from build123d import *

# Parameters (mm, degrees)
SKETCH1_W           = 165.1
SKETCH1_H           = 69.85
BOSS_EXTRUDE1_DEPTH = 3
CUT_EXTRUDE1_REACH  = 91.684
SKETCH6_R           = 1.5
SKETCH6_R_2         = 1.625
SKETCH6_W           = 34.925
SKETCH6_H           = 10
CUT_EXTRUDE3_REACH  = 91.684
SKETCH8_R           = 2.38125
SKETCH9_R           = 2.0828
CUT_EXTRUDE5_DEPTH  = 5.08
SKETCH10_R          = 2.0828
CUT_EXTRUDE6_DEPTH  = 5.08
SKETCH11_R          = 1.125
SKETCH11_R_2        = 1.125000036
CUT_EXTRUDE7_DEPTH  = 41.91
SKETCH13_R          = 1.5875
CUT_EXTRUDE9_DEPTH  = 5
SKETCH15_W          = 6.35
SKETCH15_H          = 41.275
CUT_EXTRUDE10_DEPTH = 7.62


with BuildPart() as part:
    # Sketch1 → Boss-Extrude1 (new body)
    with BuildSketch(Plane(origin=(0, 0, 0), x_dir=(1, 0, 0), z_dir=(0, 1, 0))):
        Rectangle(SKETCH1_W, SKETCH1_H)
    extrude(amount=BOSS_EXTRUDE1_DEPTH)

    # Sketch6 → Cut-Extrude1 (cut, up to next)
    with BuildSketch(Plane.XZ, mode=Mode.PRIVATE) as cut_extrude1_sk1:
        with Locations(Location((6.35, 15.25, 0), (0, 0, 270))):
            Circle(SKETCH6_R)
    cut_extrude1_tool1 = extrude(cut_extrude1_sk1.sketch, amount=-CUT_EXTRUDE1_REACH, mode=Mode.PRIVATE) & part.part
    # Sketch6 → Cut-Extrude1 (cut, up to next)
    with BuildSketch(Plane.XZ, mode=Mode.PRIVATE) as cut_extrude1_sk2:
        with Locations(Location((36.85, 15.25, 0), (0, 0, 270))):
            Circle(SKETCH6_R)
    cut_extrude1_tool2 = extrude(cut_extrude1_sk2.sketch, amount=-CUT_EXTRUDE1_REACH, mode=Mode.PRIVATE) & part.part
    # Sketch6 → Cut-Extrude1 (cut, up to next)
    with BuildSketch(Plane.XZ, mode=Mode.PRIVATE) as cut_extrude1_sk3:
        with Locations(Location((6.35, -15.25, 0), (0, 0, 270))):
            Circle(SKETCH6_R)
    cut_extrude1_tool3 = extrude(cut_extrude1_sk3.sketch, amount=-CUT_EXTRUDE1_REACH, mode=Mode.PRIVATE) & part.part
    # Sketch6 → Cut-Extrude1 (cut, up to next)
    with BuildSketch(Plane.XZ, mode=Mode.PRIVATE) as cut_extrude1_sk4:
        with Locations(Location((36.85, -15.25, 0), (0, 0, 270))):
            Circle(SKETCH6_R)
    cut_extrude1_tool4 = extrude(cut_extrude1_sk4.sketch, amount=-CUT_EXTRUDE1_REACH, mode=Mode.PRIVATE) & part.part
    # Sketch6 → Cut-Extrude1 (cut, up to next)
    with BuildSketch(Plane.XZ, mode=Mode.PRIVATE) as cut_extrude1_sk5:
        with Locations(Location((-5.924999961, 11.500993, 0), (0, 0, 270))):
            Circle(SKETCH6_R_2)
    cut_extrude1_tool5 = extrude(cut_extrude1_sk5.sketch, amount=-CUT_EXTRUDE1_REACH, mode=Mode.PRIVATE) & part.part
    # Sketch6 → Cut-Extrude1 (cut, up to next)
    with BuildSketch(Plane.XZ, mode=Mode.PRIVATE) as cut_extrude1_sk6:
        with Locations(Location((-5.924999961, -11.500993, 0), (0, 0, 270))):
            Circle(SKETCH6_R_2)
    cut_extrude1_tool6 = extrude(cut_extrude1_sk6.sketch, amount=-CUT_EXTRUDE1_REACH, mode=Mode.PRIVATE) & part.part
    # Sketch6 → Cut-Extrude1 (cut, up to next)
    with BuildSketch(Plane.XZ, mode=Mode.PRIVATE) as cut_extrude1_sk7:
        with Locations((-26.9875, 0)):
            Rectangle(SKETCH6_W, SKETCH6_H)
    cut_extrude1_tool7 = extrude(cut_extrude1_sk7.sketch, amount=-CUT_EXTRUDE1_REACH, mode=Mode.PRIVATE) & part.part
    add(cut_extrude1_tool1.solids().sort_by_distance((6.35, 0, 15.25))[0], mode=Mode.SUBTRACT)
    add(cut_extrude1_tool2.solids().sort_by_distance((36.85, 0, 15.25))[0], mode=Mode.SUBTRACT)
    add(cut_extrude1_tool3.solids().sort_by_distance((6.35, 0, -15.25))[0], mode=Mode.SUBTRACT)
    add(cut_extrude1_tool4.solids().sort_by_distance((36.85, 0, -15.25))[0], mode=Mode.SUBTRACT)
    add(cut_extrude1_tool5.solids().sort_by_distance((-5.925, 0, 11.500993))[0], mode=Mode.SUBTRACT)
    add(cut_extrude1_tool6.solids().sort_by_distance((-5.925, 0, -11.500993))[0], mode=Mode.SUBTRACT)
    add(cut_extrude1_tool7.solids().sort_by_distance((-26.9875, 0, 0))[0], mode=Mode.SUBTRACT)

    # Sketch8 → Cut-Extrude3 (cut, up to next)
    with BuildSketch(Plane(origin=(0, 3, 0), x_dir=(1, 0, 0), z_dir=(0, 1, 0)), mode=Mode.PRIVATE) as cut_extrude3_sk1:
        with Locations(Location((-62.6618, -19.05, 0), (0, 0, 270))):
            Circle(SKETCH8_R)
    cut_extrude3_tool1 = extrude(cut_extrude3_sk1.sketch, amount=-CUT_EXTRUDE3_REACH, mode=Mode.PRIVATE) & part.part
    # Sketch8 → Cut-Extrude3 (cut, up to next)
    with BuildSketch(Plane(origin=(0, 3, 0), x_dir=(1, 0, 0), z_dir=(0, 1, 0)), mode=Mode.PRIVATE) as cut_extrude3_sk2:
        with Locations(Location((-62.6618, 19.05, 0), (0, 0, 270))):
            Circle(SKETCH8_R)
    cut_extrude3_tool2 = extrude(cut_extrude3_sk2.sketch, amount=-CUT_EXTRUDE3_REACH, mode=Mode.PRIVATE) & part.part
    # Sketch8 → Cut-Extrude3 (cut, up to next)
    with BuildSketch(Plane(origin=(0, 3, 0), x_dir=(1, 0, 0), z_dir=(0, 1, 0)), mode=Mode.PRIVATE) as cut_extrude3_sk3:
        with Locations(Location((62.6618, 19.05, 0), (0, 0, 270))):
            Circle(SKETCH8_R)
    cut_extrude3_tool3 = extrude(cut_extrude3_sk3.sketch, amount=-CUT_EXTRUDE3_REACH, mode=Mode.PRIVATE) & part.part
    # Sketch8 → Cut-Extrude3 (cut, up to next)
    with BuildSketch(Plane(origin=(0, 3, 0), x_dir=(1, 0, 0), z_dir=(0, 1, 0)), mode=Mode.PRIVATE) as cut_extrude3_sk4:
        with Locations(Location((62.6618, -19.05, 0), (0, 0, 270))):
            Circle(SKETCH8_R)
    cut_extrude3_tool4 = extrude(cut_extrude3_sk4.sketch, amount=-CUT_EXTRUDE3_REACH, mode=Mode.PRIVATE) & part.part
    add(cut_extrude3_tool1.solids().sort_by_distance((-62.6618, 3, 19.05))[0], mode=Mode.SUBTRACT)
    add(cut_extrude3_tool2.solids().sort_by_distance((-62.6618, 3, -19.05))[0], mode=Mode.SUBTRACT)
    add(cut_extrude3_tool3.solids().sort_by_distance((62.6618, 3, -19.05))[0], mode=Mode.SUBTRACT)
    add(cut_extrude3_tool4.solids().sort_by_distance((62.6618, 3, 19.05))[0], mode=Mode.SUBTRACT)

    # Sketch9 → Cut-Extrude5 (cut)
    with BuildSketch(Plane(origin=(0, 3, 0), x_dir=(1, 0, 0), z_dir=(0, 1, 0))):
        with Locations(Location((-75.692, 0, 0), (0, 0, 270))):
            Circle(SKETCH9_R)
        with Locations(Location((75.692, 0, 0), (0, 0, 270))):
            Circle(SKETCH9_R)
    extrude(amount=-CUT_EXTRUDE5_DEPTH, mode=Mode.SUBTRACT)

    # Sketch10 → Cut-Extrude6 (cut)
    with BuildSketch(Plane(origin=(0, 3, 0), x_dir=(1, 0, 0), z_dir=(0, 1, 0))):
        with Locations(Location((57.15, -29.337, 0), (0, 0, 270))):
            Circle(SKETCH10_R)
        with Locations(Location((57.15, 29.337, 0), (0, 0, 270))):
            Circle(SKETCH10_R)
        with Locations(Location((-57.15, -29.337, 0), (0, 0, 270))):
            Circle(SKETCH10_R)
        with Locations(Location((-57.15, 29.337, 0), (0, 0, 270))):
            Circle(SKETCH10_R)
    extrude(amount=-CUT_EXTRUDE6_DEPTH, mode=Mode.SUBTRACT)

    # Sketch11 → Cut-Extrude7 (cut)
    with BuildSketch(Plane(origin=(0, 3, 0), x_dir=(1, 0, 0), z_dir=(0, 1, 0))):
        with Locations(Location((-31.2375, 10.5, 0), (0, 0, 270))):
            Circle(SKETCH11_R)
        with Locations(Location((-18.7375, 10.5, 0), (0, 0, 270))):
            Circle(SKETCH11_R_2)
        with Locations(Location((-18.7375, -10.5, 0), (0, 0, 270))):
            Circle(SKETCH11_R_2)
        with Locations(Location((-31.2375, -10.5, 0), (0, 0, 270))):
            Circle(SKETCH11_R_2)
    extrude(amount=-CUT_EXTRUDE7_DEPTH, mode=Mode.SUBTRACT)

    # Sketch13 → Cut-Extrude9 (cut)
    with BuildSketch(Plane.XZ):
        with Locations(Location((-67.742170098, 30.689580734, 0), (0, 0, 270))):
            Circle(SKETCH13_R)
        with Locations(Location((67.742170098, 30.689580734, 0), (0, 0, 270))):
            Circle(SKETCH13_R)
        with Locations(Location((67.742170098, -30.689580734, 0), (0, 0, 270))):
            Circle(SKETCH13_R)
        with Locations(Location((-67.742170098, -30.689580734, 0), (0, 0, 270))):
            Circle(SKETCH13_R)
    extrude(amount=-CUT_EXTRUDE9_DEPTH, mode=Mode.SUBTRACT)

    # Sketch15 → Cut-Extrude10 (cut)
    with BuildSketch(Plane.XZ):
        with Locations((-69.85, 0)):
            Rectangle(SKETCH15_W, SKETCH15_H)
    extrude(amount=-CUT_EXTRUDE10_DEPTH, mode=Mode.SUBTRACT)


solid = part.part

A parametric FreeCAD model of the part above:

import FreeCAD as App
import Part
import Sketcher
Q = App.Units.Quantity

doc = App.newDocument("Part")
body = doc.addObject("PartDesign::Body", "Body")

# Sketch on XZ plane
sketch1 = body.newObject("Sketcher::SketchObject", "Sketch")
sketch1.AttachmentSupport = (doc.getObject("XZ_Plane"), [""])
sketch1.MapMode = "FlatFace"
sketch1.addGeometry(Part.LineSegment(App.Vector(-83, -35, 0), App.Vector(-83, 35, 0)), False)
sketch1.addGeometry(Part.LineSegment(App.Vector(-83, 35, 0), App.Vector(83, 35, 0)), False)
sketch1.addGeometry(Part.LineSegment(App.Vector(83, 35, 0), App.Vector(83, -35, 0)), False)
sketch1.addGeometry(Part.LineSegment(App.Vector(83, -35, 0), App.Vector(-83, -35, 0)), False)
sketch1.addConstraint(Sketcher.Constraint("Coincident", 0, 2, 1, 1))
sketch1.addConstraint(Sketcher.Constraint("Coincident", 1, 2, 2, 1))
sketch1.addConstraint(Sketcher.Constraint("Coincident", 2, 2, 3, 1))
sketch1.addConstraint(Sketcher.Constraint("Coincident", 3, 2, 0, 1))
sketch1.addConstraint(Sketcher.Constraint("Vertical", 0))
sketch1.addConstraint(Sketcher.Constraint("Horizontal", 1))
sketch1.addConstraint(Sketcher.Constraint("Vertical", 2))
sketch1.addConstraint(Sketcher.Constraint("Horizontal", 3))
sketch1.addConstraint(Sketcher.Constraint("Symmetric", 0, 2, 2, 2, -1, 1))
sketch1.addConstraint(Sketcher.Constraint("DistanceX", 1, 1, 1, 2, Q("6.5 in")))
sketch1.addConstraint(Sketcher.Constraint("DistanceY", 0, 1, 0, 2, Q("2.75 in")))
pad1 = body.newObject("PartDesign::Pad", "Pad")
pad1.Profile = sketch1
pad1.Length = 3
pad1.Reversed = True

# Sketch on XZ plane
sketch2 = body.newObject("Sketcher::SketchObject", "Sketch001")
sketch2.AttachmentSupport = (doc.getObject("XZ_Plane"), [""])
sketch2.MapMode = "FlatFace"
sketch2.addGeometry(Part.Circle(App.Vector(6.3, 15.2, 0), App.Vector(0, 0, 1), 1.5), False)
sketch2.addConstraint(Sketcher.Constraint("Diameter", 0, 3.0))
sketch2.addConstraint(Sketcher.Constraint("DistanceX", -1, 1, 0, 3, Q("0.25 in")))
sketch2.addConstraint(Sketcher.Constraint("DistanceY", -1, 1, 0, 3, 15.25))
pocket1 = body.newObject("PartDesign::Pocket", "Pocket")
pocket1.Profile = sketch2
pocket1.Type = "UpToFirst"

# Sketch on XZ plane
sketch3 = body.newObject("Sketcher::SketchObject", "Sketch002")
sketch3.AttachmentSupport = (doc.getObject("XZ_Plane"), [""])
sketch3.MapMode = "FlatFace"
sketch3.addGeometry(Part.Circle(App.Vector(36.9, 15.2, 0), App.Vector(0, 0, 1), 1.5), False)
sketch3.addConstraint(Sketcher.Constraint("Diameter", 0, 3.0))
sketch3.addConstraint(Sketcher.Constraint("DistanceX", -1, 1, 0, 3, 36.85))
sketch3.addConstraint(Sketcher.Constraint("DistanceY", -1, 1, 0, 3, 15.25))
pocket2 = body.newObject("PartDesign::Pocket", "Pocket001")
pocket2.Profile = sketch3
pocket2.Type = "UpToFirst"

# Sketch on XZ plane
sketch4 = body.newObject("Sketcher::SketchObject", "Sketch003")
sketch4.AttachmentSupport = (doc.getObject("XZ_Plane"), [""])
sketch4.MapMode = "FlatFace"
sketch4.addGeometry(Part.Circle(App.Vector(6.3, -15.2, 0), App.Vector(0, 0, 1), 1.5), False)
sketch4.addConstraint(Sketcher.Constraint("Diameter", 0, 3.0))
sketch4.addConstraint(Sketcher.Constraint("DistanceX", -1, 1, 0, 3, Q("0.25 in")))
sketch4.addConstraint(Sketcher.Constraint("DistanceY", 0, 3, -1, 1, 15.25))
pocket3 = body.newObject("PartDesign::Pocket", "Pocket002")
pocket3.Profile = sketch4
pocket3.Type = "UpToFirst"

# Sketch on XZ plane
sketch5 = body.newObject("Sketcher::SketchObject", "Sketch004")
sketch5.AttachmentSupport = (doc.getObject("XZ_Plane"), [""])
sketch5.MapMode = "FlatFace"
sketch5.addGeometry(Part.Circle(App.Vector(36.9, -15.2, 0), App.Vector(0, 0, 1), 1.5), False)
sketch5.addConstraint(Sketcher.Constraint("Diameter", 0, 3.0))
sketch5.addConstraint(Sketcher.Constraint("DistanceX", -1, 1, 0, 3, 36.85))
sketch5.addConstraint(Sketcher.Constraint("DistanceY", 0, 3, -1, 1, 15.25))
pocket4 = body.newObject("PartDesign::Pocket", "Pocket003")
pocket4.Profile = sketch5
pocket4.Type = "UpToFirst"

# Sketch on XZ plane
sketch6 = body.newObject("Sketcher::SketchObject", "Sketch005")
sketch6.AttachmentSupport = (doc.getObject("XZ_Plane"), [""])
sketch6.MapMode = "FlatFace"
sketch6.addGeometry(Part.Circle(App.Vector(-5.9, 11.5, 0), App.Vector(0, 0, 1), 1.6), False)
sketch6.addConstraint(Sketcher.Constraint("Diameter", 0, 3.25))
sketch6.addConstraint(Sketcher.Constraint("DistanceX", 0, 3, -1, 1, 5.925))
sketch6.addConstraint(Sketcher.Constraint("DistanceY", -1, 1, 0, 3, 11.500993))
pocket5 = body.newObject("PartDesign::Pocket", "Pocket004")
pocket5.Profile = sketch6
pocket5.Type = "UpToFirst"

# Sketch on XZ plane
sketch7 = body.newObject("Sketcher::SketchObject", "Sketch006")
sketch7.AttachmentSupport = (doc.getObject("XZ_Plane"), [""])
sketch7.MapMode = "FlatFace"
sketch7.addGeometry(Part.Circle(App.Vector(-5.9, -11.5, 0), App.Vector(0, 0, 1), 1.6), False)
sketch7.addConstraint(Sketcher.Constraint("Diameter", 0, 3.25))
sketch7.addConstraint(Sketcher.Constraint("DistanceX", 0, 3, -1, 1, 5.925))
sketch7.addConstraint(Sketcher.Constraint("DistanceY", 0, 3, -1, 1, 11.500993))
pocket6 = body.newObject("PartDesign::Pocket", "Pocket005")
pocket6.Profile = sketch7
pocket6.Type = "UpToFirst"

# Sketch on XZ plane
sketch8 = body.newObject("Sketcher::SketchObject", "Sketch007")
sketch8.AttachmentSupport = (doc.getObject("XZ_Plane"), [""])
sketch8.MapMode = "FlatFace"
sketch8.addGeometry(Part.LineSegment(App.Vector(-44, 5, 0), App.Vector(-44, -5, 0)), False)
sketch8.addGeometry(Part.LineSegment(App.Vector(-44, -5, 0), App.Vector(-10, -5, 0)), False)
sketch8.addGeometry(Part.LineSegment(App.Vector(-10, -5, 0), App.Vector(-10, 5, 0)), False)
sketch8.addGeometry(Part.LineSegment(App.Vector(-10, 5, 0), App.Vector(-44, 5, 0)), False)
sketch8.addConstraint(Sketcher.Constraint("Coincident", 0, 2, 1, 1))
sketch8.addConstraint(Sketcher.Constraint("Coincident", 1, 2, 2, 1))
sketch8.addConstraint(Sketcher.Constraint("Coincident", 2, 2, 3, 1))
sketch8.addConstraint(Sketcher.Constraint("Coincident", 3, 2, 0, 1))
sketch8.addConstraint(Sketcher.Constraint("Vertical", 0))
sketch8.addConstraint(Sketcher.Constraint("Horizontal", 1))
sketch8.addConstraint(Sketcher.Constraint("Vertical", 2))
sketch8.addConstraint(Sketcher.Constraint("Horizontal", 3))
sketch8.addConstraint(Sketcher.Constraint("DistanceX", 1, 1, 1, 2, Q("1.375 in")))
sketch8.addConstraint(Sketcher.Constraint("DistanceX", 0, 2, -1, 1, Q("1.75 in")))
sketch8.addConstraint(Sketcher.Constraint("DistanceY", 0, 2, 0, 1, 10.0))
sketch8.addConstraint(Sketcher.Constraint("DistanceY", 0, 2, -1, 1, 5.0))
pocket7 = body.newObject("PartDesign::Pocket", "Pocket006")
pocket7.Profile = sketch8
pocket7.Type = "UpToFirst"

# Sketch on XZ plane
sketch9 = body.newObject("Sketcher::SketchObject", "Sketch008")
sketch9.AttachmentSupport = (doc.getObject("XZ_Plane"), [""])
sketch9.MapMode = "FlatFace"
sketch9.AttachmentOffset = App.Placement(App.Vector(0, 0, -3), App.Rotation())
sketch9.addGeometry(Part.Circle(App.Vector(-62.7, 19.1, 0), App.Vector(0, 0, 1), 2.4), False)
sketch9.addConstraint(Sketcher.Constraint("Diameter", 0, Q("0.1875 in")))
sketch9.addConstraint(Sketcher.Constraint("DistanceY", -1, 1, 0, 3, Q("0.75 in")))
sketch9.addConstraint(Sketcher.Constraint("DistanceX", 0, 3, -1, 1, Q("2.467 in")))
pocket8 = body.newObject("PartDesign::Pocket", "Pocket007")
pocket8.Profile = sketch9
pocket8.Type = "UpToFirst"
pocket8.Reversed = True

# Sketch on XZ plane
sketch10 = body.newObject("Sketcher::SketchObject", "Sketch009")
sketch10.AttachmentSupport = (doc.getObject("XZ_Plane"), [""])
sketch10.MapMode = "FlatFace"
sketch10.AttachmentOffset = App.Placement(App.Vector(0, 0, -3), App.Rotation())
sketch10.addGeometry(Part.Circle(App.Vector(-62.7, -19.1, 0), App.Vector(0, 0, 1), 2.4), False)
sketch10.addConstraint(Sketcher.Constraint("Diameter", 0, Q("0.1875 in")))
sketch10.addConstraint(Sketcher.Constraint("DistanceY", 0, 3, -1, 1, Q("0.75 in")))
sketch10.addConstraint(Sketcher.Constraint("DistanceX", 0, 3, -1, 1, Q("2.467 in")))
pocket9 = body.newObject("PartDesign::Pocket", "Pocket008")
pocket9.Profile = sketch10
pocket9.Type = "UpToFirst"
pocket9.Reversed = True

# Sketch on XZ plane
sketch11 = body.newObject("Sketcher::SketchObject", "Sketch010")
sketch11.AttachmentSupport = (doc.getObject("XZ_Plane"), [""])
sketch11.MapMode = "FlatFace"
sketch11.AttachmentOffset = App.Placement(App.Vector(0, 0, -3), App.Rotation())
sketch11.addGeometry(Part.Circle(App.Vector(62.7, -19.1, 0), App.Vector(0, 0, 1), 2.4), False)
sketch11.addConstraint(Sketcher.Constraint("Diameter", 0, Q("0.1875 in")))
sketch11.addConstraint(Sketcher.Constraint("DistanceY", 0, 3, -1, 1, Q("0.75 in")))
sketch11.addConstraint(Sketcher.Constraint("DistanceX", -1, 1, 0, 3, Q("2.467 in")))
pocket10 = body.newObject("PartDesign::Pocket", "Pocket009")
pocket10.Profile = sketch11
pocket10.Type = "UpToFirst"
pocket10.Reversed = True

# Sketch on XZ plane
sketch12 = body.newObject("Sketcher::SketchObject", "Sketch011")
sketch12.AttachmentSupport = (doc.getObject("XZ_Plane"), [""])
sketch12.MapMode = "FlatFace"
sketch12.AttachmentOffset = App.Placement(App.Vector(0, 0, -3), App.Rotation())
sketch12.addGeometry(Part.Circle(App.Vector(62.7, 19.1, 0), App.Vector(0, 0, 1), 2.4), False)
sketch12.addConstraint(Sketcher.Constraint("Diameter", 0, Q("0.1875 in")))
sketch12.addConstraint(Sketcher.Constraint("DistanceY", -1, 1, 0, 3, Q("0.75 in")))
sketch12.addConstraint(Sketcher.Constraint("DistanceX", -1, 1, 0, 3, Q("2.467 in")))
pocket11 = body.newObject("PartDesign::Pocket", "Pocket010")
pocket11.Profile = sketch12
pocket11.Type = "UpToFirst"
pocket11.Reversed = True

# Sketch on XZ plane
sketch13 = body.newObject("Sketcher::SketchObject", "Sketch012")
sketch13.AttachmentSupport = (doc.getObject("XZ_Plane"), [""])
sketch13.MapMode = "FlatFace"
sketch13.AttachmentOffset = App.Placement(App.Vector(0, 0, -3), App.Rotation())
sketch13.addGeometry(Part.Circle(App.Vector(-75.7, 0, 0), App.Vector(0, 0, 1), 2.1), False)
sketch13.addGeometry(Part.Circle(App.Vector(75.7, 0, 0), App.Vector(0, 0, 1), 2.1), False)
sketch13.addConstraint(Sketcher.Constraint("Equal", 0, 1))
sketch13.addConstraint(Sketcher.Constraint("Symmetric", 0, 3, 1, 3, -1, 1))
sketch13.addConstraint(Sketcher.Constraint("PointOnObject", 0, 3, -1))
sketch13.addConstraint(Sketcher.Constraint("Diameter", 0, Q("0.164 in")))
sketch13.addConstraint(Sketcher.Constraint("DistanceX", 0, 3, -1, 1, Q("2.98 in")))
pocket12 = body.newObject("PartDesign::Pocket", "Pocket011")
pocket12.Profile = sketch13
pocket12.Length = Q("0.2 in")
pocket12.Reversed = True

# Sketch on XZ plane
sketch14 = body.newObject("Sketcher::SketchObject", "Sketch013")
sketch14.AttachmentSupport = (doc.getObject("XZ_Plane"), [""])
sketch14.MapMode = "FlatFace"
sketch14.AttachmentOffset = App.Placement(App.Vector(0, 0, -3), App.Rotation())
sketch14.addGeometry(Part.Circle(App.Vector(57.1, 29.3, 0), App.Vector(0, 0, 1), 2.1), False)
sketch14.addGeometry(Part.Circle(App.Vector(57.1, -29.3, 0), App.Vector(0, 0, 1), 2.1), False)
sketch14.addGeometry(Part.Circle(App.Vector(-57.1, 29.3, 0), App.Vector(0, 0, 1), 2.1), False)
sketch14.addGeometry(Part.Circle(App.Vector(-57.1, -29.3, 0), App.Vector(0, 0, 1), 2.1), False)
sketch14.addConstraint(Sketcher.Constraint("Equal", 0, 1))
sketch14.addConstraint(Sketcher.Constraint("Equal", 1, 2))
sketch14.addConstraint(Sketcher.Constraint("Equal", 2, 3))
sketch14.addConstraint(Sketcher.Constraint("Symmetric", 1, 3, 2, 3, -1, 1))
sketch14.addConstraint(Sketcher.Constraint("Symmetric", 0, 3, 3, 3, -1, 1))
sketch14.addConstraint(Sketcher.Constraint("Symmetric", 0, 3, 2, 3, -2))
sketch14.addConstraint(Sketcher.Constraint("Diameter", 0, Q("0.164 in")))
sketch14.addConstraint(Sketcher.Constraint("DistanceX", 2, 3, 0, 3, Q("4.5 in")))
sketch14.addConstraint(Sketcher.Constraint("DistanceY", 1, 3, 0, 3, Q("2.31 in")))
pocket13 = body.newObject("PartDesign::Pocket", "Pocket012")
pocket13.Profile = sketch14
pocket13.Length = Q("0.2 in")
pocket13.Reversed = True

# Sketch on XZ plane
sketch15 = body.newObject("Sketcher::SketchObject", "Sketch014")
sketch15.AttachmentSupport = (doc.getObject("XZ_Plane"), [""])
sketch15.MapMode = "FlatFace"
sketch15.AttachmentOffset = App.Placement(App.Vector(0, 0, -3), App.Rotation())
sketch15.addGeometry(Part.Circle(App.Vector(-31.2, -10.5, 0), App.Vector(0, 0, 1), 1.1), False)
sketch15.addGeometry(Part.Circle(App.Vector(-18.7, -10.5, 0), App.Vector(0, 0, 1), 1.1), False)
sketch15.addGeometry(Part.Circle(App.Vector(-18.7, 10.5, 0), App.Vector(0, 0, 1), 1.1), False)
sketch15.addGeometry(Part.Circle(App.Vector(-31.2, 10.5, 0), App.Vector(0, 0, 1), 1.1), False)
sketch15.addConstraint(Sketcher.Constraint("Equal", 0, 1))
sketch15.addConstraint(Sketcher.Constraint("Equal", 1, 2))
sketch15.addConstraint(Sketcher.Constraint("Equal", 2, 3))
sketch15.addConstraint(Sketcher.Constraint("Symmetric", 1, 3, 2, 3, -1))
sketch15.addConstraint(Sketcher.Constraint("Symmetric", 0, 3, 3, 3, -1))
sketch15.addConstraint(Sketcher.Constraint("Horizontal", 0, 3, 1, 3))
sketch15.addConstraint(Sketcher.Constraint("Diameter", 0, 2.25))
sketch15.addConstraint(Sketcher.Constraint("DistanceX", 0, 3, -1, 1, 31.2375))
sketch15.addConstraint(Sketcher.Constraint("DistanceY", 0, 3, -1, 1, 10.5))
sketch15.addConstraint(Sketcher.Constraint("DistanceX", 1, 3, -1, 1, 18.7375))
pocket14 = body.newObject("PartDesign::Pocket", "Pocket013")
pocket14.Profile = sketch15
pocket14.Length = Q("1.65 in")
pocket14.Reversed = True

# Sketch on XZ plane
sketch16 = body.newObject("Sketcher::SketchObject", "Sketch015")
sketch16.AttachmentSupport = (doc.getObject("XZ_Plane"), [""])
sketch16.MapMode = "FlatFace"
sketch16.addGeometry(Part.Circle(App.Vector(-67.7, 30.7, 0), App.Vector(0, 0, 1), 1.6), False)
sketch16.addGeometry(Part.Circle(App.Vector(67.7, 30.7, 0), App.Vector(0, 0, 1), 1.6), False)
sketch16.addGeometry(Part.Circle(App.Vector(67.7, -30.7, 0), App.Vector(0, 0, 1), 1.6), False)
sketch16.addGeometry(Part.Circle(App.Vector(-67.7, -30.7, 0), App.Vector(0, 0, 1), 1.6), False)
sketch16.addConstraint(Sketcher.Constraint("Equal", 0, 1))
sketch16.addConstraint(Sketcher.Constraint("Equal", 1, 2))
sketch16.addConstraint(Sketcher.Constraint("Equal", 2, 3))
sketch16.addConstraint(Sketcher.Constraint("Symmetric", 0, 3, 2, 3, -1, 1))
sketch16.addConstraint(Sketcher.Constraint("Symmetric", 1, 3, 3, 3, -1, 1))
sketch16.addConstraint(Sketcher.Constraint("Symmetric", 0, 3, 1, 3, -2))
sketch16.addConstraint(Sketcher.Constraint("Diameter", 0, Q("0.125 in")))
sketch16.addConstraint(Sketcher.Constraint("DistanceX", 0, 3, -1, 1, 67.74217))
sketch16.addConstraint(Sketcher.Constraint("DistanceY", -1, 1, 0, 3, 30.689581))
pocket15 = body.newObject("PartDesign::Pocket", "Pocket014")
pocket15.Profile = sketch16
pocket15.Length = 5

# Sketch on XZ plane
sketch17 = body.newObject("Sketcher::SketchObject", "Sketch016")
sketch17.AttachmentSupport = (doc.getObject("XZ_Plane"), [""])
sketch17.MapMode = "FlatFace"
sketch17.addGeometry(Part.LineSegment(App.Vector(-73, 21, 0), App.Vector(-73, -21, 0)), False)
sketch17.addGeometry(Part.LineSegment(App.Vector(-73, -21, 0), App.Vector(-67, -21, 0)), False)
sketch17.addGeometry(Part.LineSegment(App.Vector(-67, -21, 0), App.Vector(-67, 21, 0)), False)
sketch17.addGeometry(Part.LineSegment(App.Vector(-67, 21, 0), App.Vector(-73, 21, 0)), False)
sketch17.addConstraint(Sketcher.Constraint("Coincident", 0, 2, 1, 1))
sketch17.addConstraint(Sketcher.Constraint("Coincident", 1, 2, 2, 1))
sketch17.addConstraint(Sketcher.Constraint("Coincident", 2, 2, 3, 1))
sketch17.addConstraint(Sketcher.Constraint("Coincident", 3, 2, 0, 1))
sketch17.addConstraint(Sketcher.Constraint("Vertical", 0))
sketch17.addConstraint(Sketcher.Constraint("Horizontal", 1))
sketch17.addConstraint(Sketcher.Constraint("Vertical", 2))
sketch17.addConstraint(Sketcher.Constraint("Horizontal", 3))
sketch17.addConstraint(Sketcher.Constraint("DistanceX", 1, 1, 1, 2, Q("0.25 in")))
sketch17.addConstraint(Sketcher.Constraint("DistanceY", 0, 2, 0, 1, Q("1.625 in")))
sketch17.addConstraint(Sketcher.Constraint("DistanceX", 0, 2, -1, 1, Q("2.875 in")))
sketch17.addConstraint(Sketcher.Constraint("DistanceY", 0, 2, -1, 1, Q("0.8125 in")))
pocket16 = body.newObject("PartDesign::Pocket", "Pocket015")
pocket16.Profile = sketch17
pocket16.Length = Q("0.3 in")

doc.recompute()
